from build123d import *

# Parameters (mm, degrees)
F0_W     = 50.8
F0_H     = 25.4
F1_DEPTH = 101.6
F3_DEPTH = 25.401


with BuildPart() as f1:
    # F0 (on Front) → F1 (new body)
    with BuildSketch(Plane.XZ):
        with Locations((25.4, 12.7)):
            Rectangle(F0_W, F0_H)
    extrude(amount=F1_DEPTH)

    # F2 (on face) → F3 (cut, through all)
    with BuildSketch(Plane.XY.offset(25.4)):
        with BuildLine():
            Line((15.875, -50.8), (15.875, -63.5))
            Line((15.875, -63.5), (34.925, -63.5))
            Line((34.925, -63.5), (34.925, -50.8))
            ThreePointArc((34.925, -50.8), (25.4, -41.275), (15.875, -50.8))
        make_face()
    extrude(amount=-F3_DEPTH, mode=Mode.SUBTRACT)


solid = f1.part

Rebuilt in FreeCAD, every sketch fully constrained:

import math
import FreeCAD as App
import Part
import Sketcher

V = App.Vector
Q = App.Units.Quantity

doc = App.newDocument("Part")
body = doc.addObject("PartDesign::Body", "Body")

sketch1 = doc.addObject("Sketcher::SketchObject", "Sketch")
body.addObject(sketch1)
sketch1.AttachmentSupport = (doc.XZ_Plane, [""])
sketch1.MapMode = "FlatFace"
sketch1.addGeometry(Part.LineSegment(V(0, 25.4, 0), V(0, 0, 0)), False)
sketch1.addGeometry(Part.LineSegment(V(0, 0, 0), V(50.8, 0, 0)), False)
sketch1.addGeometry(Part.LineSegment(V(50.8, 0, 0), V(50.8, 25.4, 0)), False)
sketch1.addGeometry(Part.LineSegment(V(50.8, 25.4, 0), V(0, 25.4, 0)), False)
sketch1.addConstraint(Sketcher.Constraint("Coincident", 0, 2, 1, 1))
sketch1.addConstraint(Sketcher.Constraint("Coincident", 1, 2, 2, 1))
sketch1.addConstraint(Sketcher.Constraint("Coincident", 2, 2, 3, 1))
sketch1.addConstraint(Sketcher.Constraint("Coincident", 3, 2, 0, 1))
sketch1.addConstraint(Sketcher.Constraint("Vertical", 0))
sketch1.addConstraint(Sketcher.Constraint("Horizontal", 1))
sketch1.addConstraint(Sketcher.Constraint("Vertical", 2))
sketch1.addConstraint(Sketcher.Constraint("Horizontal", 3))
sketch1.addConstraint(Sketcher.Constraint("Coincident", 0, 2, -1, 1))
sketch1.addConstraint(Sketcher.Constraint("DistanceX", 1, 1, 1, 2, Q("2 in")))
sketch1.addConstraint(Sketcher.Constraint("DistanceY", 0, 2, 0, 1, Q("1 in")))
pad1 = doc.addObject("PartDesign::Pad", "Pad")
body.addObject(pad1)
pad1.Profile = sketch1
pad1.Length = Q("4 in")

sketch2 = doc.addObject("Sketcher::SketchObject", "Sketch001")
body.addObject(sketch2)
sketch2.AttachmentSupport = (doc.XY_Plane, [""])
sketch2.MapMode = "FlatFace"
sketch2.AttachmentOffset = App.Placement(V(0, 0, 1 * 25.4), App.Rotation())
sketch2.addGeometry(Part.LineSegment(V(15.875, -50.8, 0), V(15.875, -63.5, 0)), False)
sketch2.addGeometry(Part.LineSegment(V(15.875, -63.5, 0), V(34.925, -63.5, 0)), False)
sketch2.addGeometry(Part.LineSegment(V(34.925, -63.5, 0), V(34.925, -50.8, 0)), False)
sketch2.addGeometry(Part.ArcOfCircle(Part.Circle(V(25.4, -50.8, 0), V(0, 0, 1), 9.525), math.radians(0), math.radians(180)), False)
sketch2.addConstraint(Sketcher.Constraint("Coincident", 0, 2, 1, 1))
sketch2.addConstraint(Sketcher.Constraint("Coincident", 1, 2, 2, 1))
sketch2.addConstraint(Sketcher.Constraint("Tangent", 2, 2, 3, 1))
sketch2.addConstraint(Sketcher.Constraint("Tangent", 3, 2, 0, 1))
sketch2.addConstraint(Sketcher.Constraint("Vertical", 0))
sketch2.addConstraint(Sketcher.Constraint("Horizontal", 1))
sketch2.addConstraint(Sketcher.Constraint("Vertical", 2))
sketch2.addConstraint(Sketcher.Constraint("DistanceY", 0, 2, 0, 1, Q("0.5 in")))
sketch2.addConstraint(Sketcher.Constraint("DistanceX", -1, 1, 3, 3, Q("1 in")))
sketch2.addConstraint(Sketcher.Constraint("DistanceY", 3, 3, -1, 1, Q("2 in")))
sketch2.addConstraint(Sketcher.Constraint("Radius", 3, Q("0.375 in")))
pocket1 = doc.addObject("PartDesign::Pocket", "Pocket")
body.addObject(pocket1)
pocket1.Profile = sketch2
pocket1.Type = "ThroughAll"

doc.recompute()
